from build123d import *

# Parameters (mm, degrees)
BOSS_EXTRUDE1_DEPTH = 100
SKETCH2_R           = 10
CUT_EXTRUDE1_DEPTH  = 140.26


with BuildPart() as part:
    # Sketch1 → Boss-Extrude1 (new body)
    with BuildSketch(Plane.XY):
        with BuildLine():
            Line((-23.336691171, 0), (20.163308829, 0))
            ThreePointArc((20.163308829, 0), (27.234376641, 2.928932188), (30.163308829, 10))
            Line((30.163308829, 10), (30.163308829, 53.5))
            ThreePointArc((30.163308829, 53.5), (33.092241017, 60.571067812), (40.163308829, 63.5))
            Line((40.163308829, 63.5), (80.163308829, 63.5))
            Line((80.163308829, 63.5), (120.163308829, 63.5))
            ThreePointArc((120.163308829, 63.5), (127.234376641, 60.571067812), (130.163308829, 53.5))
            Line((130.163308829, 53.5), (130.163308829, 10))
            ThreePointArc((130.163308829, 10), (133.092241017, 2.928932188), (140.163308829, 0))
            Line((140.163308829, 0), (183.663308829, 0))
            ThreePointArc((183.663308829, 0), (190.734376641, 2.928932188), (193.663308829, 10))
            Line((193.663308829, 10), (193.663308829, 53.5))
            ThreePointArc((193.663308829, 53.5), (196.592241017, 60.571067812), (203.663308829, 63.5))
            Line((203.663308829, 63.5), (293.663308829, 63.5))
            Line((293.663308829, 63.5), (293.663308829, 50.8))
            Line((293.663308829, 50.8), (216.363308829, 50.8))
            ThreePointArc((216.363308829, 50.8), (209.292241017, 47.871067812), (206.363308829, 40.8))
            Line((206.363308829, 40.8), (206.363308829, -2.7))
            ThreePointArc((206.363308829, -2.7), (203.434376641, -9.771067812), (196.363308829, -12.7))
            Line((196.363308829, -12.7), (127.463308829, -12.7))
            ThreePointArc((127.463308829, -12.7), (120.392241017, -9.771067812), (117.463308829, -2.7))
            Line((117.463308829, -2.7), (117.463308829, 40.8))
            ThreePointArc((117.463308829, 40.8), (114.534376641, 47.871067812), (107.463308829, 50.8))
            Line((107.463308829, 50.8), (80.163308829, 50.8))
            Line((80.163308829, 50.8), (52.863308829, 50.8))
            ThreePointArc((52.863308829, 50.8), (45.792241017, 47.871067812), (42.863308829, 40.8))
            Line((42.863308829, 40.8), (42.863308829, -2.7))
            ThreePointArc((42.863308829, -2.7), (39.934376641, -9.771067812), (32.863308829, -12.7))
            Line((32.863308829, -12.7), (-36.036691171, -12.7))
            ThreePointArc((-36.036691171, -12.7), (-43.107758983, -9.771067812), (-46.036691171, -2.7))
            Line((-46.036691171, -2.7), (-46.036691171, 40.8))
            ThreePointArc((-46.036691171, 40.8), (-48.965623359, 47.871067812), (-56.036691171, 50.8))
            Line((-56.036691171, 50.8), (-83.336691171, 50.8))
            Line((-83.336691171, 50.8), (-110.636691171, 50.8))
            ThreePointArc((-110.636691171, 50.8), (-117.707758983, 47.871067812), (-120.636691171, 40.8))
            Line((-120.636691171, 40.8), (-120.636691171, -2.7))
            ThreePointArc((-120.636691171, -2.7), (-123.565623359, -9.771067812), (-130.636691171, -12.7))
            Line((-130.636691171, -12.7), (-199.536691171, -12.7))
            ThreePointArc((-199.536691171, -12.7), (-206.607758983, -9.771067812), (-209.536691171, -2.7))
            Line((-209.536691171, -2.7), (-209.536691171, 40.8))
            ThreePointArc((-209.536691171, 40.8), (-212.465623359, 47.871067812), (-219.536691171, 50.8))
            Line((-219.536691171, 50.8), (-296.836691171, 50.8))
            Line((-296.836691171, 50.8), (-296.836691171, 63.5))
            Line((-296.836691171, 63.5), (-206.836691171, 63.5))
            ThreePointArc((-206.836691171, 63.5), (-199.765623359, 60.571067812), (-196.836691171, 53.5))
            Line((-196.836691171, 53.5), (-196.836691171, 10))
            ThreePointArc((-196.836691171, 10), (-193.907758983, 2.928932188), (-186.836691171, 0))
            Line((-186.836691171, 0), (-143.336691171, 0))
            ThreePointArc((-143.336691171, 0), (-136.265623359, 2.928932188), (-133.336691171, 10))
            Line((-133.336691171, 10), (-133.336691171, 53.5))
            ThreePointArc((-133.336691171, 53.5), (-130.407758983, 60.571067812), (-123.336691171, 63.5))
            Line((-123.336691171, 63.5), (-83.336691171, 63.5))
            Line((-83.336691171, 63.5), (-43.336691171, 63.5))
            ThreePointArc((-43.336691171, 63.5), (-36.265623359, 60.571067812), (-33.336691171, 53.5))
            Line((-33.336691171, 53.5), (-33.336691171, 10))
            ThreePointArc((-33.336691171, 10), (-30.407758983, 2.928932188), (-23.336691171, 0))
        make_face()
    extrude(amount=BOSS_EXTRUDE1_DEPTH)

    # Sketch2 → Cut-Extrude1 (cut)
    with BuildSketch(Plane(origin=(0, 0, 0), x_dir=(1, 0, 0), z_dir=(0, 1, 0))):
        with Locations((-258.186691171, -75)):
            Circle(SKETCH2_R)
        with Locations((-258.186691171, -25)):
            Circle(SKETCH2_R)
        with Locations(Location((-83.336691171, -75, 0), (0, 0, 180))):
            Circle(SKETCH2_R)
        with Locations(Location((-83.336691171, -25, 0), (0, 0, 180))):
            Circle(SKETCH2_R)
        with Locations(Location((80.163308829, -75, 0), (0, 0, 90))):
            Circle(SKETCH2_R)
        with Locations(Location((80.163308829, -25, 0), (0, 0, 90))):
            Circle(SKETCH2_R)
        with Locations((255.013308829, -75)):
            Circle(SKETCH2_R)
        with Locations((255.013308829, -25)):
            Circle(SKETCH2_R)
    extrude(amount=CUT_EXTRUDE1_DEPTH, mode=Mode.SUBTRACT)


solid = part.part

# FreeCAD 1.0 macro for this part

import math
import FreeCAD as App
import Part
import Sketcher
from FreeCAD import Vector

doc = App.newDocument("Part")
body = doc.addObject("PartDesign::Body", "Body")

# Sketch on XY plane
sketch1 = body.newObject("Sketcher::SketchObject", "Sketch")
sketch1.AttachmentSupport = (doc.getObject("XY_Plane"), [""])
sketch1.MapMode = "FlatFace"
sketch1.addGeometry([
    Part.LineSegment(Vector(20.163309, 0, 0), Vector(-23.336691, 0, 0)),  # 0
    Part.ArcOfCircle(Part.Circle(Vector(-23.336691, 10, 0), Vector(0, 0, 1), 10), math.radians(180), math.radians(270)),  # 1
    Part.LineSegment(Vector(-33.336691, 10, 0), Vector(-33.336691, 53.5, 0)),  # 2
    Part.ArcOfCircle(Part.Circle(Vector(-43.336691, 53.5, 0), Vector(0, 0, 1), 10), math.radians(0), math.radians(90)),  # 3
    Part.LineSegment(Vector(-43.336691, 63.5, 0), Vector(-123.336691, 63.5, 0)),  # 4
    Part.ArcOfCircle(Part.Circle(Vector(-123.336691, 53.5, 0), Vector(0, 0, 1), 10), math.radians(90), math.radians(180)),  # 5
    Part.LineSegment(Vector(-133.336691, 53.5, 0), Vector(-133.336691, 10, 0)),  # 6
    Part.ArcOfCircle(Part.Circle(Vector(-143.336691, 10, 0), Vector(0, 0, 1), 10), math.radians(-90), math.radians(0)),  # 7
    Part.LineSegment(Vector(-143.336691, 0, 0), Vector(-186.836691, 0, 0)),  # 8
    Part.ArcOfCircle(Part.Circle(Vector(-186.836691, 10, 0), Vector(0, 0, 1), 10), math.radians(180), math.radians(270)),  # 9
    Part.LineSegment(Vector(-196.836691, 10, 0), Vector(-196.836691, 53.5, 0)),  # 10
    Part.ArcOfCircle(Part.Circle(Vector(-206.836691, 53.5, 0), Vector(0, 0, 1), 10), math.radians(0), math.radians(90)),  # 11
    Part.LineSegment(Vector(-206.836691, 63.5, 0), Vector(-296.836691, 63.5, 0)),  # 12
    Part.LineSegment(Vector(-296.836691, 63.5, 0), Vector(-296.836691, 50.8, 0)),  # 13
    Part.LineSegment(Vector(-296.836691, 50.8, 0), Vector(-219.536691, 50.8, 0)),  # 14
    Part.ArcOfCircle(Part.Circle(Vector(-219.536691, 40.8, 0), Vector(0, 0, 1), 10), math.radians(0), math.radians(90)),  # 15
    Part.LineSegment(Vector(-209.536691, 40.8, 0), Vector(-209.536691, -2.7, 0)),  # 16
    Part.ArcOfCircle(Part.Circle(Vector(-199.536691, -2.7, 0), Vector(0, 0, 1), 10), math.radians(180), math.radians(270)),  # 17
    Part.LineSegment(Vector(-199.536691, -12.7, 0), Vector(-130.636691, -12.7, 0)),  # 18
    Part.ArcOfCircle(Part.Circle(Vector(-130.636691, -2.7, 0), Vector(0, 0, 1), 10), math.radians(-90), math.radians(0)),  # 19
    Part.LineSegment(Vector(-120.636691, -2.7, 0), Vector(-120.636691, 40.8, 0)),  # 20
    Part.ArcOfCircle(Part.Circle(Vector(-110.636691, 40.8, 0), Vector(0, 0, 1), 10), math.radians(90), math.radians(180)),  # 21
    Part.LineSegment(Vector(-110.636691, 50.8, 0), Vector(-56.036691, 50.8, 0)),  # 22
    Part.ArcOfCircle(Part.Circle(Vector(-56.036691, 40.8, 0), Vector(0, 0, 1), 10), math.radians(0), math.radians(90)),  # 23
    Part.LineSegment(Vector(-46.036691, 40.8, 0), Vector(-46.036691, -2.7, 0)),  # 24
    Part.ArcOfCircle(Part.Circle(Vector(-36.036691, -2.7, 0), Vector(0, 0, 1), 10), math.radians(180), math.radians(270)),  # 25
    Part.LineSegment(Vector(-36.036691, -12.7, 0), Vector(32.863309, -12.7, 0)),  # 26
    Part.ArcOfCircle(Part.Circle(Vector(32.863309, -2.7, 0), Vector(0, 0, 1), 10), math.radians(-90), math.radians(0)),  # 27
    Part.LineSegment(Vector(42.863309, -2.7, 0), Vector(42.863309, 40.8, 0)),  # 28
    Part.ArcOfCircle(Part.Circle(Vector(52.863309, 40.8, 0), Vector(0, 0, 1), 10), math.radians(90), math.radians(180)),  # 29
    Part.LineSegment(Vector(52.863309, 50.8, 0), Vector(107.463309, 50.8, 0)),  # 30
    Part.ArcOfCircle(Part.Circle(Vector(107.463309, 40.8, 0), Vector(0, 0, 1), 10), math.radians(0), math.radians(90)),  # 31
    Part.LineSegment(Vector(117.463309, 40.8, 0), Vector(117.463309, -2.7, 0)),  # 32
    Part.ArcOfCircle(Part.Circle(Vector(127.463309, -2.7, 0), Vector(0, 0, 1), 10), math.radians(180), math.radians(270)),  # 33
    Part.LineSegment(Vector(127.463309, -12.7, 0), Vector(196.363309, -12.7, 0)),  # 34
    Part.ArcOfCircle(Part.Circle(Vector(196.363309, -2.7, 0), Vector(0, 0, 1), 10), math.radians(-90), math.radians(0)),  # 35
    Part.LineSegment(Vector(206.363309, -2.7, 0), Vector(206.363309, 40.8, 0)),  # 36
    Part.ArcOfCircle(Part.Circle(Vector(216.363309, 40.8, 0), Vector(0, 0, 1), 10), math.radians(90), math.radians(180)),  # 37
    Part.LineSegment(Vector(216.363309, 50.8, 0), Vector(293.663309, 50.8, 0)),  # 38
    Part.LineSegment(Vector(293.663309, 50.8, 0), Vector(293.663309, 63.5, 0)),  # 39
    Part.LineSegment(Vector(293.663309, 63.5, 0), Vector(203.663309, 63.5, 0)),  # 40
    Part.ArcOfCircle(Part.Circle(Vector(203.663309, 53.5, 0), Vector(0, 0, 1), 10), math.radians(90), math.radians(180)),  # 41
    Part.LineSegment(Vector(193.663309, 53.5, 0), Vector(193.663309, 10, 0)),  # 42
    Part.ArcOfCircle(Part.Circle(Vector(183.663309, 10, 0), Vector(0, 0, 1), 10), math.radians(-90), math.radians(0)),  # 43
    Part.LineSegment(Vector(183.663309, 0, 0), Vector(140.163309, 0, 0)),  # 44
    Part.ArcOfCircle(Part.Circle(Vector(140.163309, 10, 0), Vector(0, 0, 1), 10), math.radians(180), math.radians(270)),  # 45
    Part.LineSegment(Vector(130.163309, 10, 0), Vector(130.163309, 53.5, 0)),  # 46
    Part.ArcOfCircle(Part.Circle(Vector(120.163309, 53.5, 0), Vector(0, 0, 1), 10), math.radians(0), math.radians(90)),  # 47
    Part.LineSegment(Vector(120.163309, 63.5, 0), Vector(40.163309, 63.5, 0)),  # 48
    Part.ArcOfCircle(Part.Circle(Vector(40.163309, 53.5, 0), Vector(0, 0, 1), 10), math.radians(90), math.radians(180)),  # 49
    Part.LineSegment(Vector(30.163309, 53.5, 0), Vector(30.163309, 10, 0)),  # 50
    Part.ArcOfCircle(Part.Circle(Vector(20.163309, 10, 0), Vector(0, 0, 1), 10), math.radians(-90), math.radians(0)),  # 51
], False)
sketch1.addConstraint([
    Sketcher.Constraint("Tangent", 0, 2, 1, 2),
    Sketcher.Constraint("Tangent", 1, 1, 2, 1),
    Sketcher.Constraint("Tangent", 2, 2, 3, 1),
    Sketcher.Constraint("Tangent", 3, 2, 4, 1),
    Sketcher.Constraint("Tangent", 4, 2, 5, 1),
    Sketcher.Constraint("Tangent", 5, 2, 6, 1),
    Sketcher.Constraint("Tangent", 6, 2, 7, 2),
    Sketcher.Constraint("Tangent", 7, 1, 8, 1),
    Sketcher.Constraint("Tangent", 8, 2, 9, 2),
    Sketcher.Constraint("Tangent", 9, 1, 10, 1),
    Sketcher.Constraint("Tangent", 10, 2, 11, 1),
    Sketcher.Constraint("Tangent", 11, 2, 12, 1),
    Sketcher.Constraint("Coincident", 12, 2, 13, 1),
    Sketcher.Constraint("Coincident", 13, 2, 14, 1),
    Sketcher.Constraint("Tangent", 14, 2, 15, 2),
    Sketcher.Constraint("Tangent", 15, 1, 16, 1),
    Sketcher.Constraint("Tangent", 16, 2, 17, 1),
    Sketcher.Constraint("Tangent", 17, 2, 18, 1),
    Sketcher.Constraint("Tangent", 18, 2, 19, 1),
    Sketcher.Constraint("Tangent", 19, 2, 20, 1),
    Sketcher.Constraint("Tangent", 20, 2, 21, 2),
    Sketcher.Constraint("Tangent", 21, 1, 22, 1),
    Sketcher.Constraint("Tangent", 22, 2, 23, 2),
    Sketcher.Constraint("Tangent", 23, 1, 24, 1),
    Sketcher.Constraint("Tangent", 24, 2, 25, 1),
    Sketcher.Constraint("Tangent", 25, 2, 26, 1),
    Sketcher.Constraint("Tangent", 26, 2, 27, 1),
    Sketcher.Constraint("Tangent", 27, 2, 28, 1),
    Sketcher.Constraint("Tangent", 28, 2, 29, 2),
    Sketcher.Constraint("Tangent", 29, 1, 30, 1),
    Sketcher.Constraint("Tangent", 30, 2, 31, 2),
    Sketcher.Constraint("Tangent", 31, 1, 32, 1),
    Sketcher.Constraint("Tangent", 32, 2, 33, 1),
    Sketcher.Constraint("Tangent", 33, 2, 34, 1),
    Sketcher.Constraint("Tangent", 34, 2, 35, 1),
    Sketcher.Constraint("Tangent", 35, 2, 36, 1),
    Sketcher.Constraint("Tangent", 36, 2, 37, 2),
    Sketcher.Constraint("Tangent", 37, 1, 38, 1),
    Sketcher.Constraint("Coincident", 38, 2, 39, 1),
    Sketcher.Constraint("Coincident", 39, 2, 40, 1),
    Sketcher.Constraint("Tangent", 40, 2, 41, 1),
    Sketcher.Constraint("Tangent", 41, 2, 42, 1),
    Sketcher.Constraint("Tangent", 42, 2, 43, 2),
    Sketcher.Constraint("Tangent", 43, 1, 44, 1),
    Sketcher.Constraint("Tangent", 44, 2, 45, 2),
    Sketcher.Constraint("Tangent", 45, 1, 46, 1),
    Sketcher.Constraint("Tangent", 46, 2, 47, 1),
    Sketcher.Constraint("Tangent", 47, 2, 48, 1),
    Sketcher.Constraint("Tangent", 48, 2, 49, 1),
    Sketcher.Constraint("Tangent", 49, 2, 50, 1),
    Sketcher.Constraint("Tangent", 50, 2, 51, 2),
    Sketcher.Constraint("Tangent", 51, 1, 0, 1),
    Sketcher.Constraint("Horizontal", 0),
    Sketcher.Constraint("Vertical", 2),
    Sketcher.Constraint("Horizontal", 4),
    Sketcher.Constraint("Vertical", 6),
    Sketcher.Constraint("Horizontal", 8),
    Sketcher.Constraint("Vertical", 10),
    Sketcher.Constraint("Horizontal", 12),
    Sketcher.Constraint("Vertical", 13),
    Sketcher.Constraint("Horizontal", 14),
    Sketcher.Constraint("Vertical", 16),
    Sketcher.Constraint("Horizontal", 18),
    Sketcher.Constraint("Vertical", 20),
    Sketcher.Constraint("Horizontal", 22),
    Sketcher.Constraint("Vertical", 24),
    Sketcher.Constraint("Horizontal", 26),
    Sketcher.Constraint("Vertical", 28),
    Sketcher.Constraint("Horizontal", 30),
    Sketcher.Constraint("Vertical", 32),
    Sketcher.Constraint("Horizontal", 34),
    Sketcher.Constraint("Vertical", 36),
    Sketcher.Constraint("Horizontal", 38),
    Sketcher.Constraint("Vertical", 39),
    Sketcher.Constraint("Horizontal", 40),
    Sketcher.Constraint("Vertical", 42),
    Sketcher.Constraint("Horizontal", 44),
    Sketcher.Constraint("Vertical", 46),
    Sketcher.Constraint("Horizontal", 48),
    Sketcher.Constraint("Vertical", 50),
    Sketcher.Constraint("Equal", 1, 3),
    Sketcher.Constraint("Equal", 3, 5),
    Sketcher.Constraint("Equal", 5, 7),
    Sketcher.Constraint("Equal", 7, 9),
    Sketcher.Constraint("Equal", 9, 11),
    Sketcher.Constraint("Equal", 11, 15),
    Sketcher.Constraint("Equal", 15, 17),
    Sketcher.Constraint("Equal", 17, 19),
    Sketcher.Constraint("Equal", 19, 21),
    Sketcher.Constraint("Equal", 21, 23),
    Sketcher.Constraint("Equal", 23, 25),
    Sketcher.Constraint("Equal", 25, 27),
    Sketcher.Constraint("Equal", 27, 29),
    Sketcher.Constraint("Equal", 29, 31),
    Sketcher.Constraint("Equal", 31, 33),
    Sketcher.Constraint("Equal", 33, 35),
    Sketcher.Constraint("Equal", 35, 37),
    Sketcher.Constraint("Equal", 37, 41),
    Sketcher.Constraint("Equal", 41, 43),
    Sketcher.Constraint("Equal", 43, 45),
    Sketcher.Constraint("Equal", 45, 47),
    Sketcher.Constraint("Equal", 47, 49),
    Sketcher.Constraint("Equal", 49, 51),
    Sketcher.Constraint("PointOnObject", 0, 2, -1),
    Sketcher.Constraint("PointOnObject", 7, 1, -1),
    Sketcher.Constraint("PointOnObject", 43, 1, -1),
    Sketcher.Constraint("Horizontal", 5, 3, 11, 3),
    Sketcher.Constraint("Horizontal", 15, 3, 21, 3),
    Sketcher.Constraint("Horizontal", 19, 3, 25, 3),
    Sketcher.Constraint("Horizontal", 23, 3, 29, 3),
    Sketcher.Constraint("Horizontal", 27, 3, 33, 3),
    Sketcher.Constraint("Horizontal", 31, 3, 37, 3),
    Sketcher.Constraint("Horizontal", 11, 3, 41, 3),
    Sketcher.Constraint("Horizontal", 41, 3, 47, 3),
    Sketcher.Constraint("Equal", 0, 8),
    Sketcher.Constraint("Equal", 18, 26),
    Sketcher.Constraint("Equal", 22, 30),
    Sketcher.Constraint("Equal", 26, 34),
    Sketcher.Constraint("Equal", 14, 38),
    Sketcher.Constraint("Equal", 12, 40),
    Sketcher.Constraint("Equal", 8, 44),
    Sketcher.Constraint("Equal", 4, 48),
    Sketcher.Constraint("Equal", 44, 2),
    Sketcher.Constraint("Equal", 10, 16),
    Sketcher.Constraint("Radius", 1, 10.0),
    Sketcher.Constraint("DistanceX", 4, 2, 4, 1, 80.0),
    Sketcher.Constraint("DistanceX", 12, 2, 12, 1, 90.0),
    Sketcher.Constraint("DistanceX", 0, 2, 0, 1, 43.5),
    Sketcher.Constraint("DistanceX", 14, 1, 14, 2, 77.3),
    Sketcher.Constraint("DistanceX", 18, 1, 18, 2, 68.9),
    Sketcher.Constraint("DistanceY", 13, 2, 13, 1, 12.7),
    Sketcher.Constraint("DistanceX", 1, 3, -1, 1, 23.336691),
])
pad1 = body.newObject("PartDesign::Pad", "Pad")
pad1.Profile = sketch1
pad1.Length = 100

# Sketch on XZ plane
sketch2 = body.newObject("Sketcher::SketchObject", "Sketch001")
sketch2.AttachmentSupport = (doc.getObject("XZ_Plane"), [""])
sketch2.MapMode = "FlatFace"
sketch2.addGeometry([
    Part.Circle(Vector(-258.186691, 75, 0), Vector(0, 0, 1), 10),  # 0
    Part.Circle(Vector(-258.186691, 25, 0), Vector(0, 0, 1), 10),  # 1
    Part.Circle(Vector(-83.336691, 75, 0), Vector(0, 0, 1), 10),  # 2
    Part.Circle(Vector(-83.336691, 25, 0), Vector(0, 0, 1), 10),  # 3
    Part.Circle(Vector(80.163309, 75, 0), Vector(0, 0, 1), 10),  # 4
    Part.Circle(Vector(80.163309, 25, 0), Vector(0, 0, 1), 10),  # 5
    Part.Circle(Vector(255.013309, 75, 0), Vector(0, 0, 1), 10),  # 6
    Part.Circle(Vector(255.013309, 25, 0), Vector(0, 0, 1), 10),  # 7
], False)
sketch2.addConstraint([
    Sketcher.Constraint("Equal", 0, 1),
    Sketcher.Constraint("Equal", 1, 2),
    Sketcher.Constraint("Equal", 2, 3),
    Sketcher.Constraint("Equal", 3, 4),
    Sketcher.Constraint("Equal", 4, 5),
    Sketcher.Constraint("Equal", 5, 6),
    Sketcher.Constraint("Equal", 6, 7),
    Sketcher.Constraint("Horizontal", 0, 3, 2, 3),
    Sketcher.Constraint("Horizontal", 1, 3, 3, 3),
    Sketcher.Constraint("Horizontal", 2, 3, 4, 3),
    Sketcher.Constraint("Horizontal", 3, 3, 5, 3),
    Sketcher.Constraint("Horizontal", 4, 3, 6, 3),
    Sketcher.Constraint("Horizontal", 5, 3, 7, 3),
    Sketcher.Constraint("Vertical", 0, 3, 1, 3),
    Sketcher.Constraint("Vertical", 2, 3, 3, 3),
    Sketcher.Constraint("Vertical", 4, 3, 5, 3),
    Sketcher.Constraint("Vertical", 6, 3, 7, 3),
    Sketcher.Constraint("Diameter", 0, 20.0),
    Sketcher.Constraint("DistanceY", -1, 1, 0, 3, 75.0),
    Sketcher.Constraint("DistanceY", -1, 1, 1, 3, 25.0),
    Sketcher.Constraint("DistanceX", 2, 3, 4, 3, 163.5),
    Sketcher.Constraint("DistanceX", 0, 3, 6, 3, 513.2),
    Sketcher.Constraint("DistanceX", 0, 3, 2, 3, 174.85),
    Sketcher.Constraint("DistanceX", 0, 3, -1, 1, 258.186691),
])
pocket1 = body.newObject("PartDesign::Pocket", "Pocket")
pocket1.Profile = sketch2
pocket1.Length = 140.26

doc.recompute()
